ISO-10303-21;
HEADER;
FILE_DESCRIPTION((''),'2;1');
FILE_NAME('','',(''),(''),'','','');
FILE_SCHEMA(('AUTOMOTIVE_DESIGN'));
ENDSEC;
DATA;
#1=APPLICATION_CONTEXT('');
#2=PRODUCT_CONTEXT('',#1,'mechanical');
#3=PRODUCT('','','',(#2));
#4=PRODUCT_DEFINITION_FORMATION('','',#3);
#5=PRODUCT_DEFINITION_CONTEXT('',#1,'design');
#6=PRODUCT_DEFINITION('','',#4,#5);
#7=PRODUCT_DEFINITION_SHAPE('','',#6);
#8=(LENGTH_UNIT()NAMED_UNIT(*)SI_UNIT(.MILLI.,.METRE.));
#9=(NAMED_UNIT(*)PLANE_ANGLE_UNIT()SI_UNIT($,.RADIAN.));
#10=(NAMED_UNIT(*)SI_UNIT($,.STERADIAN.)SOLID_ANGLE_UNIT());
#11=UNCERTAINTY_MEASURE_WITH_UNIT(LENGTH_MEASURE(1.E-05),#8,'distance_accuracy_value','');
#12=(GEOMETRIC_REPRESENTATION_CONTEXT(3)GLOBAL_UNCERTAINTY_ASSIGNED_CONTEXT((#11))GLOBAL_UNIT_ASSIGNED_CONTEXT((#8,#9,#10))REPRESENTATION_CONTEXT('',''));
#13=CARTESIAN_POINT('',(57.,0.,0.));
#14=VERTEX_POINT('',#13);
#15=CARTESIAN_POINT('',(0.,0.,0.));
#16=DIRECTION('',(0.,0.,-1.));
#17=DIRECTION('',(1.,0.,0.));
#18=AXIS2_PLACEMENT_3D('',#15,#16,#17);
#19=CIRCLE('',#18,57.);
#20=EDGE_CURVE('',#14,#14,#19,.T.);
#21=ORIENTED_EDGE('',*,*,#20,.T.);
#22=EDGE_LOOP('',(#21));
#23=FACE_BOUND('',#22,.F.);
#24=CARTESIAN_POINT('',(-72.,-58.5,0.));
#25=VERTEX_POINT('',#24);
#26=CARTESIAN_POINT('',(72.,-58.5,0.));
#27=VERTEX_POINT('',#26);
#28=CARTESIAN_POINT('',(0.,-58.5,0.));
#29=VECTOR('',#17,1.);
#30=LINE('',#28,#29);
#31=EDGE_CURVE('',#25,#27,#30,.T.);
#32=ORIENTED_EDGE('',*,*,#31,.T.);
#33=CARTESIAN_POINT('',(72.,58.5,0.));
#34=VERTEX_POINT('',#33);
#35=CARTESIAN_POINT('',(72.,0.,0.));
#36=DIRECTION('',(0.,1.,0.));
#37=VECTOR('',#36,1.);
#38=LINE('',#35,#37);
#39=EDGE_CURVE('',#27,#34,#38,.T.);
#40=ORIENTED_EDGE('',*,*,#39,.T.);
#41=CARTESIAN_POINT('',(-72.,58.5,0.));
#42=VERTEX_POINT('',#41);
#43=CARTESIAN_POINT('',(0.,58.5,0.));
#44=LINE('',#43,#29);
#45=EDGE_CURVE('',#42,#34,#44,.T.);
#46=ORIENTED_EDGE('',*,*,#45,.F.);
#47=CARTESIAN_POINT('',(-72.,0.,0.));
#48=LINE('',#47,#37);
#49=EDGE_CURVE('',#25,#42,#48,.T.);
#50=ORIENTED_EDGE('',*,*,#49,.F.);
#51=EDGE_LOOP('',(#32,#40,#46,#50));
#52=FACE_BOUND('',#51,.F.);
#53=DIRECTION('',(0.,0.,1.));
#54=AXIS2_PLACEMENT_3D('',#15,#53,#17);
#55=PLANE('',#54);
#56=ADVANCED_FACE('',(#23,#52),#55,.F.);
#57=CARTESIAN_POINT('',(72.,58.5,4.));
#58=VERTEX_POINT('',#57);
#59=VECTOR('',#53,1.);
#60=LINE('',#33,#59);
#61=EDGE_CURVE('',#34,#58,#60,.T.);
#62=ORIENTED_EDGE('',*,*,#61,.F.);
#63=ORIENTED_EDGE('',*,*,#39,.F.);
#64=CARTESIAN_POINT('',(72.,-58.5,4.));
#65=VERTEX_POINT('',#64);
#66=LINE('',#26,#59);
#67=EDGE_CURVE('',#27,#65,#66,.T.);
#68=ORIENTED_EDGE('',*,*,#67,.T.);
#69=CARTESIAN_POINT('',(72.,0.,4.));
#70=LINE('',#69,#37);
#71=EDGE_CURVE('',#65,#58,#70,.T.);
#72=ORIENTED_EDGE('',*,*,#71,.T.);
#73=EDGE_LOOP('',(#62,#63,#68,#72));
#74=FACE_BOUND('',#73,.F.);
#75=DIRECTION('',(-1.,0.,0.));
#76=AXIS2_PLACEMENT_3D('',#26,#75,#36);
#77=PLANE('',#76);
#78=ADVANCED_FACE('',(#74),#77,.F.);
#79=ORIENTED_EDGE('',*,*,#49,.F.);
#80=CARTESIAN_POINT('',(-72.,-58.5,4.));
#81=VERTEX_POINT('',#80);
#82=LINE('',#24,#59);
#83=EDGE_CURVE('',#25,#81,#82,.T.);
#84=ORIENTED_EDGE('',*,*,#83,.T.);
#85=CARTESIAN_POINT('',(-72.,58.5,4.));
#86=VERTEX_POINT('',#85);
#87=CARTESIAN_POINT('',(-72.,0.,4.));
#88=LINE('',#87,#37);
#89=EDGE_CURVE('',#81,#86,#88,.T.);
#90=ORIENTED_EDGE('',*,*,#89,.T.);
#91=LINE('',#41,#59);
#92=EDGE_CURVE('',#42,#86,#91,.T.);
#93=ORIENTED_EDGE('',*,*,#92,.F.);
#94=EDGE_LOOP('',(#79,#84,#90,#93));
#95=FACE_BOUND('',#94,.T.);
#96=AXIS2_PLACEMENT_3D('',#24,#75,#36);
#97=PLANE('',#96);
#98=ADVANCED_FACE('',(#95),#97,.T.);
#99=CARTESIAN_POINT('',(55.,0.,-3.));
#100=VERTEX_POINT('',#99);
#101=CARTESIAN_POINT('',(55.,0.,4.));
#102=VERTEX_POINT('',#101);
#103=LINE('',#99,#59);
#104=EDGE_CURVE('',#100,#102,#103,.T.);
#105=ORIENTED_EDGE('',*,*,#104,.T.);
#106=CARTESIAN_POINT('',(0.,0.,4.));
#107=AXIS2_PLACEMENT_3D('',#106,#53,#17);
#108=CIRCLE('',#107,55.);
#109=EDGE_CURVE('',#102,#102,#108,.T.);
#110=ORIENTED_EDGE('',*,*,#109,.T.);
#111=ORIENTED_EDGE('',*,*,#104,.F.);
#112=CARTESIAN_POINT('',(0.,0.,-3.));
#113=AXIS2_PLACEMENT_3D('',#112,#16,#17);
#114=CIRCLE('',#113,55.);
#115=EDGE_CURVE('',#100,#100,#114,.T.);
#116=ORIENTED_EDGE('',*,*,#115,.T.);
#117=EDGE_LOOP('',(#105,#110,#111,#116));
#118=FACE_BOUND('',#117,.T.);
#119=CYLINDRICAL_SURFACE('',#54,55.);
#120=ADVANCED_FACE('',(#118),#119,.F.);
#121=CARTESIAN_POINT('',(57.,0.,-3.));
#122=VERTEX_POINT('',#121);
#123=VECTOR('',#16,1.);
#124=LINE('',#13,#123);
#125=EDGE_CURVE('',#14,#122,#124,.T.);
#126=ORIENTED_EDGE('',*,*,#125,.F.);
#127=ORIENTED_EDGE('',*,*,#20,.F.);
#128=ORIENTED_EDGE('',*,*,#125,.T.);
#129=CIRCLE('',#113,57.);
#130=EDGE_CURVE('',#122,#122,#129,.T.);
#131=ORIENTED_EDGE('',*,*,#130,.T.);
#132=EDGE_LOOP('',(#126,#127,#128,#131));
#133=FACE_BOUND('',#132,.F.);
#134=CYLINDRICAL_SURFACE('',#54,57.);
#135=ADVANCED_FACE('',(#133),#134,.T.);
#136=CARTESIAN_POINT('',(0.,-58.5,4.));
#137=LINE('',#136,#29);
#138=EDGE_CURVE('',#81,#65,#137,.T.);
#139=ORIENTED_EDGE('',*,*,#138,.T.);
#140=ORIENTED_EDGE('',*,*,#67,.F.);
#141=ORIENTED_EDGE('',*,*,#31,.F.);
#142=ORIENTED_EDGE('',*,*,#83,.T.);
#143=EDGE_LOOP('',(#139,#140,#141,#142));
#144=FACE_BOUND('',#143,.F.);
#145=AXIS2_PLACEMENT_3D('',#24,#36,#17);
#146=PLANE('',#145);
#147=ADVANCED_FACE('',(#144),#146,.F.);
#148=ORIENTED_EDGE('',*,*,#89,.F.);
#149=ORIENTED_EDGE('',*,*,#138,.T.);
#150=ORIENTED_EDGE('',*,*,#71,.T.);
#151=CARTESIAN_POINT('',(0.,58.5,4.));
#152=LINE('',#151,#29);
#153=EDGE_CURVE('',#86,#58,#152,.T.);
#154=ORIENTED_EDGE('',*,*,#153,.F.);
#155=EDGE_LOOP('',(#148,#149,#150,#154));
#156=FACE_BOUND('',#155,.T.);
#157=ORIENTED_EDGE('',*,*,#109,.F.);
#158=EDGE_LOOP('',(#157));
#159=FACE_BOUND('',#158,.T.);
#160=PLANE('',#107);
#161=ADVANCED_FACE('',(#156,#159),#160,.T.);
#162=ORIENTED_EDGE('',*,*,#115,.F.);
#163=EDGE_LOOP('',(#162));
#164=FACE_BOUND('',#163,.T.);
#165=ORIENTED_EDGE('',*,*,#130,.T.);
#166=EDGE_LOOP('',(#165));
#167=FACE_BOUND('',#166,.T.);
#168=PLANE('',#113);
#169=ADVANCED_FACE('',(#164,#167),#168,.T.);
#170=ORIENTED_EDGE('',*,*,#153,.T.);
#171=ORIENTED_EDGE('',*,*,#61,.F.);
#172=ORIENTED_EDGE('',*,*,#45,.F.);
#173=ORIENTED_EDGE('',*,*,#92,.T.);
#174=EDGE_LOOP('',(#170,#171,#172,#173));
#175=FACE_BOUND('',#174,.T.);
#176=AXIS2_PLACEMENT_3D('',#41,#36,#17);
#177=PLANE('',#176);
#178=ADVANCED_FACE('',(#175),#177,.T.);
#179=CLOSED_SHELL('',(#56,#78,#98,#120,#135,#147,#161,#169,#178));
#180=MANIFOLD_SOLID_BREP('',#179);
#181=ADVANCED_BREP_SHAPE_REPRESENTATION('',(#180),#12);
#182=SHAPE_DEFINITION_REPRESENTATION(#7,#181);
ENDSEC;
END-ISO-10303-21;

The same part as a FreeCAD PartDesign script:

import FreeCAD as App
import Part
import Sketcher

V = App.Vector
Q = App.Units.Quantity

doc = App.newDocument("Part")
params = doc.addObject("Spreadsheet::Sheet", "Params")
for row, (alias, value) in enumerate([
    ("sketch1_diameter", "110 mm"),
    ("sketch1_width", "144 mm"),
    ("sketch1_height", "117 mm"),
    ("pad1_length", "4 mm"),
    ("sketch2_diameter", "114 mm"),
    ("sketch2_diameter2", "110 mm"),
    ("pad2_length", "3 mm"),
], start=1):
    params.set(f"A{row}", alias)
    params.set(f"B{row}", "=" + value)
    params.setAlias(f"B{row}", alias)

body = doc.addObject("PartDesign::Body", "Body")

# Sketch on XY plane
sketch1 = doc.addObject("Sketcher::SketchObject", "Sketch")
body.addObject(sketch1)
sketch1.AttachmentSupport = (doc.XY_Plane, [""])
sketch1.MapMode = "FlatFace"
sketch1.addGeometry([
    Part.LineSegment(V(-72, 58.5, 0), V(-72, -58.5, 0)),  # 0
    Part.LineSegment(V(-72, -58.5, 0), V(72, -58.5, 0)),  # 1
    Part.LineSegment(V(72, -58.5, 0), V(72, 58.5, 0)),  # 2
    Part.LineSegment(V(72, 58.5, 0), V(-72, 58.5, 0)),  # 3
    Part.Circle(V(0, 0, 0), V(0, 0, 1), 55),  # 4
], False)
sketch1.addConstraint([
    Sketcher.Constraint("Coincident", 0, 2, 1, 1),
    Sketcher.Constraint("Coincident", 1, 2, 2, 1),
    Sketcher.Constraint("Coincident", 2, 2, 3, 1),
    Sketcher.Constraint("Coincident", 3, 2, 0, 1),
    Sketcher.Constraint("Vertical", 0),
    Sketcher.Constraint("Horizontal", 1),
    Sketcher.Constraint("Vertical", 2),
    Sketcher.Constraint("Horizontal", 3),
    Sketcher.Constraint("Coincident", 4, 3, -1, 1),
    Sketcher.Constraint("Symmetric", 0, 2, 2, 2, -1, 1),
    Sketcher.Constraint("Diameter", 4, Q("110 mm")),
    Sketcher.Constraint("DistanceX", 1, 1, 1, 2, Q("144 mm")),
    Sketcher.Constraint("DistanceY", 0, 2, 0, 1, Q("117 mm")),
])
sketch1.setExpression("Constraints[10]", "Params.sketch1_diameter")
sketch1.setExpression("Constraints[11]", "Params.sketch1_width")
sketch1.setExpression("Constraints[12]", "Params.sketch1_height")
pad1 = doc.addObject("PartDesign::Pad", "Pad")
body.addObject(pad1)
pad1.Profile = sketch1
pad1.setExpression("Length", "Params.pad1_length")

# Sketch on XY plane
sketch2 = doc.addObject("Sketcher::SketchObject", "Sketch001")
body.addObject(sketch2)
sketch2.AttachmentSupport = (doc.XY_Plane, [""])
sketch2.MapMode = "FlatFace"
sketch2.addGeometry([
    Part.Circle(V(0, 0, 0), V(0, 0, 1), 57),
    Part.Circle(V(0, 0, 0), V(0, 0, 1), 55),
], False)
sketch2.addConstraint([
    Sketcher.Constraint("Coincident", 0, 3, -1, 1),
    Sketcher.Constraint("Coincident", 1, 3, -1, 1),
    Sketcher.Constraint("Diameter", 0, Q("114 mm")),
    Sketcher.Constraint("Diameter", 1, Q("110 mm")),
])
sketch2.setExpression("Constraints[2]", "Params.sketch2_diameter")
sketch2.setExpression("Constraints[3]", "Params.sketch2_diameter2")
pad2 = doc.addObject("PartDesign::Pad", "Pad001")
body.addObject(pad2)
pad2.Profile = sketch2
pad2.setExpression("Length", "Params.pad2_length")
pad2.Reversed = True

doc.recompute()
